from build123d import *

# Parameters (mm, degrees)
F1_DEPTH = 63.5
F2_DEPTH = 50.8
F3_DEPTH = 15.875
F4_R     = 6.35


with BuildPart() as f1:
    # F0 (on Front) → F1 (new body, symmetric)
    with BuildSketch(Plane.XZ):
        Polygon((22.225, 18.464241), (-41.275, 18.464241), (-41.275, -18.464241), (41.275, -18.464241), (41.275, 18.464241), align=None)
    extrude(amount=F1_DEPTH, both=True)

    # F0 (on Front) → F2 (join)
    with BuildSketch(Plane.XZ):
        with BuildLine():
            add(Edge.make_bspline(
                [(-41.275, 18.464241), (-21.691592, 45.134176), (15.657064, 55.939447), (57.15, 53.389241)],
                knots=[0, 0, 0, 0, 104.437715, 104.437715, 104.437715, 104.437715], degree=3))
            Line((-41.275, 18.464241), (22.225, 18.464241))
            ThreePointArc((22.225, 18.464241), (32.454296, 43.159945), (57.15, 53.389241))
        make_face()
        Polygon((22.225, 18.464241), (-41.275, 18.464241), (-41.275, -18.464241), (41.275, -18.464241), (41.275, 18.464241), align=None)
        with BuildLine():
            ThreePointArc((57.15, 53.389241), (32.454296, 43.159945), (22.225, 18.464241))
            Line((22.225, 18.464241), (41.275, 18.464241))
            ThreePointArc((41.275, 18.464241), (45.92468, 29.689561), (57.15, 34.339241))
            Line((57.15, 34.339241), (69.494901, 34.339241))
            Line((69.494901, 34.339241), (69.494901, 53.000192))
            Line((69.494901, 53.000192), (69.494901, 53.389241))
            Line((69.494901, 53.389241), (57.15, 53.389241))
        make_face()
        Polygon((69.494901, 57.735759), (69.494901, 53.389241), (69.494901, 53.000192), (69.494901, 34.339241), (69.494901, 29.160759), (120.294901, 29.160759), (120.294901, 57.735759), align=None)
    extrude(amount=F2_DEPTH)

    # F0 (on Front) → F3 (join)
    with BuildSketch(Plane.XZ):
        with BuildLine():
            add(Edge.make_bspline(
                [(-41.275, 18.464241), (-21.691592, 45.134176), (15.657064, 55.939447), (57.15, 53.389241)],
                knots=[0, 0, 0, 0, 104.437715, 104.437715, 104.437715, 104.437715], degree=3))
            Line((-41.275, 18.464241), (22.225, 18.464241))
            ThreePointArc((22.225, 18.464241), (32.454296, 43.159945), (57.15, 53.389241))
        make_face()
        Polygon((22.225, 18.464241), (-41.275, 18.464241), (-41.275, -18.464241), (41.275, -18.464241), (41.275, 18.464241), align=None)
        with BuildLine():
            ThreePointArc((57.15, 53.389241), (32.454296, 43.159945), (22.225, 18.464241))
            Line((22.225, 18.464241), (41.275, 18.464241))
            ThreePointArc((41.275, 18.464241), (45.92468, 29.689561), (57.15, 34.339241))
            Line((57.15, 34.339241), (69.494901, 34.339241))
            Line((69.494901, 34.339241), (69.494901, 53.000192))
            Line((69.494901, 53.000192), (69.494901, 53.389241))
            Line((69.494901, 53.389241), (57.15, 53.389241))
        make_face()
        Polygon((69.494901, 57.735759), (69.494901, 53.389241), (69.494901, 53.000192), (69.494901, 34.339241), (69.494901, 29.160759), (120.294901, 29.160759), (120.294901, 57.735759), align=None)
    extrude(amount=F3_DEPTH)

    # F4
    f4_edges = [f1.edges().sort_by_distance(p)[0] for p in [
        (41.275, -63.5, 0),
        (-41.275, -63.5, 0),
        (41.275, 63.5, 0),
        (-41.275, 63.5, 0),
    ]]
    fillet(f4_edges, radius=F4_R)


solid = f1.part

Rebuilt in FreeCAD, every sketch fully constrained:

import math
import FreeCAD as App
import Part
import Sketcher
Q = App.Units.Quantity


def edges_at(feature, points):
    """Names of the edges that pass closest to the given points."""
    edges = feature.Shape.Edges
    near = lambda p: min(range(len(edges)), key=lambda i: edges[i].distToShape(Part.Vertex(*p))[0])
    return sorted({f"Edge{near(p) + 1}" for p in points})


def add_polygon(sketch, points):
    """Adds a closed chain of lines whose ends are joined by coincident constraints."""
    first, n = sketch.GeometryCount, len(points)
    for a, b in zip(points, points[1:] + points[:1]):
        sketch.addGeometry(Part.LineSegment(App.Vector(*a, 0), App.Vector(*b, 0)), False)
    for i in range(n):
        sketch.addConstraint(Sketcher.Constraint("Coincident", first + i, 2, first + (i + 1) % n, 1))

doc = App.newDocument("Part")
body = doc.addObject("PartDesign::Body", "Body")

# Sketch on XZ plane
sketch1 = body.newObject("Sketcher::SketchObject", "Sketch")
sketch1.AttachmentSupport = (doc.getObject("XZ_Plane"), [""])
sketch1.MapMode = "FlatFace"
add_polygon(sketch1, [(-41.275, 18.464241), (-41.275, -18.464241), (41.275, -18.464241), (41.275, 18.464241)])  # lines 0-3
sketch1.addConstraint(Sketcher.Constraint("Vertical", 0))
sketch1.addConstraint(Sketcher.Constraint("Horizontal", 1))
sketch1.addConstraint(Sketcher.Constraint("Vertical", 2))
sketch1.addConstraint(Sketcher.Constraint("Horizontal", 3))
sketch1.addConstraint(Sketcher.Constraint("Symmetric", 0, 2, 2, 2, -1, 1))
sketch1.addConstraint(Sketcher.Constraint("DistanceX", 1, 1, 1, 2, Q("3.25 in")))
sketch1.addConstraint(Sketcher.Constraint("DistanceY", 0, 2, 0, 1, Q("36.928482 mm")))
pad1 = body.newObject("PartDesign::Pad", "Pad")
pad1.Profile = sketch1
pad1.Length = Q("5 in")
pad1.Midplane = True

# Sketch on XZ plane
sketch2 = body.newObject("Sketcher::SketchObject", "Sketch001")
sketch2.AttachmentSupport = (doc.getObject("XZ_Plane"), [""])
sketch2.MapMode = "FlatFace"
sketch2.addGeometry(Part.BSplineCurve([App.Vector(-41.275, 18.464241, 0), App.Vector(-21.691592, 45.134176, 0), App.Vector(15.657064, 55.939447, 0), App.Vector(57.15, 53.389241, 0)], [4, 4], [0, 104.437715], False, 3, [1, 1, 1, 1], False), False)
sketch2.addGeometry(Part.LineSegment(App.Vector(-41.275, 18.464241, 0), App.Vector(-41.275, -18.464241, 0)), False)
sketch2.addGeometry(Part.LineSegment(App.Vector(-41.275, -18.464241, 0), App.Vector(41.275, -18.464241, 0)), False)
sketch2.addGeometry(Part.LineSegment(App.Vector(41.275, -18.464241, 0), App.Vector(41.275, 18.464241, 0)), False)
sketch2.addGeometry(Part.ArcOfCircle(Part.Circle(App.Vector(57.150001, 18.46424, 0), App.Vector(0, 0, 1), 15.875001), math.radians(90.000002), math.radians(179.999998)), False)
sketch2.addGeometry(Part.LineSegment(App.Vector(57.15, 34.339241, 0), App.Vector(69.494901, 34.339241, 0)), False)
sketch2.addGeometry(Part.LineSegment(App.Vector(69.494901, 34.339241, 0), App.Vector(69.494901, 29.160759, 0)), False)
sketch2.addGeometry(Part.LineSegment(App.Vector(69.494901, 29.160759, 0), App.Vector(120.294901, 29.160759, 0)), False)
sketch2.addGeometry(Part.LineSegment(App.Vector(120.294901, 29.160759, 0), App.Vector(120.294901, 57.735759, 0)), False)
sketch2.addGeometry(Part.LineSegment(App.Vector(120.294901, 57.735759, 0), App.Vector(69.494901, 57.735759, 0)), False)
sketch2.addGeometry(Part.LineSegment(App.Vector(69.494901, 57.735759, 0), App.Vector(69.494901, 53.389241, 0)), False)
sketch2.addGeometry(Part.LineSegment(App.Vector(69.494901, 53.389241, 0), App.Vector(57.15, 53.389241, 0)), False)
sketch2.addConstraint(Sketcher.Constraint("Block", 0))
sketch2.addConstraint(Sketcher.Constraint("Coincident", 0, 1, 1, 1))
sketch2.addConstraint(Sketcher.Constraint("Coincident", 1, 2, 2, 1))
sketch2.addConstraint(Sketcher.Constraint("Coincident", 2, 2, 3, 1))
sketch2.addConstraint(Sketcher.Constraint("Coincident", 3, 2, 4, 2))
sketch2.addConstraint(Sketcher.Constraint("Coincident", 4, 1, 5, 1))
sketch2.addConstraint(Sketcher.Constraint("Coincident", 5, 2, 6, 1))
sketch2.addConstraint(Sketcher.Constraint("Coincident", 6, 2, 7, 1))
sketch2.addConstraint(Sketcher.Constraint("Coincident", 7, 2, 8, 1))
sketch2.addConstraint(Sketcher.Constraint("Coincident", 8, 2, 9, 1))
sketch2.addConstraint(Sketcher.Constraint("Coincident", 9, 2, 10, 1))
sketch2.addConstraint(Sketcher.Constraint("Coincident", 10, 2, 11, 1))
sketch2.addConstraint(Sketcher.Constraint("Coincident", 11, 2, 0, 2))
sketch2.addConstraint(Sketcher.Constraint("Vertical", 1))
sketch2.addConstraint(Sketcher.Constraint("Horizontal", 2))
sketch2.addConstraint(Sketcher.Constraint("Vertical", 3))
sketch2.addConstraint(Sketcher.Constraint("Horizontal", 5))
sketch2.addConstraint(Sketcher.Constraint("Vertical", 6))
sketch2.addConstraint(Sketcher.Constraint("Horizontal", 7))
sketch2.addConstraint(Sketcher.Constraint("Vertical", 8))
sketch2.addConstraint(Sketcher.Constraint("Horizontal", 9))
sketch2.addConstraint(Sketcher.Constraint("Vertical", 10))
sketch2.addConstraint(Sketcher.Constraint("Horizontal", 11))
sketch2.addConstraint(Sketcher.Constraint("DistanceX", 7, 1, 7, 2, Q("2 in")))
sketch2.addConstraint(Sketcher.Constraint("DistanceX", 9, 2, 9, 1, Q("2 in")))
sketch2.addConstraint(Sketcher.Constraint("Radius", 4, Q("0.625 in")))
sketch2.addConstraint(Sketcher.Constraint("DistanceX", 2, 1, 2, 2, Q("3.25 in")))
sketch2.addConstraint(Sketcher.Constraint("DistanceY", 8, 1, 8, 2, Q("1.125 in")))
sketch2.addConstraint(Sketcher.Constraint("DistanceX", -1, 1, 4, 1, Q("2.25 in")))
sketch2.addConstraint(Sketcher.Constraint("DistanceY", 5, 2, 10, 2, Q("0.75 in")))
sketch2.addConstraint(Sketcher.Constraint("DistanceY", 3, 2, 4, 1, Q("0.625 in")))
sketch2.addConstraint(Sketcher.Constraint("DistanceY", 2, 2, 6, 2, Q("1.875 in")))
sketch2.addConstraint(Sketcher.Constraint("DistanceX", 5, 1, 5, 2, Q("12.344901 mm")))
sketch2.addConstraint(Sketcher.Constraint("DistanceY", 10, 2, 10, 1, Q("4.346518 mm")))
pad2 = body.newObject("PartDesign::Pad", "Pad001")
pad2.Profile = sketch2
pad2.Length = Q("2 in")

# Sketch on XZ plane
sketch3 = body.newObject("Sketcher::SketchObject", "Sketch002")
sketch3.AttachmentSupport = (doc.getObject("XZ_Plane"), [""])
sketch3.MapMode = "FlatFace"
sketch3.addGeometry(Part.BSplineCurve([App.Vector(-41.275, 18.464241, 0), App.Vector(-21.691592, 45.134176, 0), App.Vector(15.657064, 55.939447, 0), App.Vector(57.15, 53.389241, 0)], [4, 4], [0, 104.437715], False, 3, [1, 1, 1, 1], False), False)
sketch3.addGeometry(Part.LineSegment(App.Vector(-41.275, 18.464241, 0), App.Vector(-41.275, -18.464241, 0)), False)
sketch3.addGeometry(Part.LineSegment(App.Vector(-41.275, -18.464241, 0), App.Vector(41.275, -18.464241, 0)), False)
sketch3.addGeometry(Part.LineSegment(App.Vector(41.275, -18.464241, 0), App.Vector(41.275, 18.464241, 0)), False)
sketch3.addGeometry(Part.ArcOfCircle(Part.Circle(App.Vector(57.150001, 18.46424, 0), App.Vector(0, 0, 1), 15.875001), math.radians(90.000002), math.radians(179.999998)), False)
sketch3.addGeometry(Part.LineSegment(App.Vector(57.15, 34.339241, 0), App.Vector(69.494901, 34.339241, 0)), False)
sketch3.addGeometry(Part.LineSegment(App.Vector(69.494901, 34.339241, 0), App.Vector(69.494901, 29.160759, 0)), False)
sketch3.addGeometry(Part.LineSegment(App.Vector(69.494901, 29.160759, 0), App.Vector(120.294901, 29.160759, 0)), False)
sketch3.addGeometry(Part.LineSegment(App.Vector(120.294901, 29.160759, 0), App.Vector(120.294901, 57.735759, 0)), False)
sketch3.addGeometry(Part.LineSegment(App.Vector(120.294901, 57.735759, 0), App.Vector(69.494901, 57.735759, 0)), False)
sketch3.addGeometry(Part.LineSegment(App.Vector(69.494901, 57.735759, 0), App.Vector(69.494901, 53.389241, 0)), False)
sketch3.addGeometry(Part.LineSegment(App.Vector(69.494901, 53.389241, 0), App.Vector(57.15, 53.389241, 0)), False)
sketch3.addConstraint(Sketcher.Constraint("Block", 0))
sketch3.addConstraint(Sketcher.Constraint("Coincident", 0, 1, 1, 1))
sketch3.addConstraint(Sketcher.Constraint("Coincident", 1, 2, 2, 1))
sketch3.addConstraint(Sketcher.Constraint("Coincident", 2, 2, 3, 1))
sketch3.addConstraint(Sketcher.Constraint("Coincident", 3, 2, 4, 2))
sketch3.addConstraint(Sketcher.Constraint("Coincident", 4, 1, 5, 1))
sketch3.addConstraint(Sketcher.Constraint("Coincident", 5, 2, 6, 1))
sketch3.addConstraint(Sketcher.Constraint("Coincident", 6, 2, 7, 1))
sketch3.addConstraint(Sketcher.Constraint("Coincident", 7, 2, 8, 1))
sketch3.addConstraint(Sketcher.Constraint("Coincident", 8, 2, 9, 1))
sketch3.addConstraint(Sketcher.Constraint("Coincident", 9, 2, 10, 1))
sketch3.addConstraint(Sketcher.Constraint("Coincident", 10, 2, 11, 1))
sketch3.addConstraint(Sketcher.Constraint("Coincident", 11, 2, 0, 2))
sketch3.addConstraint(Sketcher.Constraint("Vertical", 1))
sketch3.addConstraint(Sketcher.Constraint("Horizontal", 2))
sketch3.addConstraint(Sketcher.Constraint("Vertical", 3))
sketch3.addConstraint(Sketcher.Constraint("Horizontal", 5))
sketch3.addConstraint(Sketcher.Constraint("Vertical", 6))
sketch3.addConstraint(Sketcher.Constraint("Horizontal", 7))
sketch3.addConstraint(Sketcher.Constraint("Vertical", 8))
sketch3.addConstraint(Sketcher.Constraint("Horizontal", 9))
sketch3.addConstraint(Sketcher.Constraint("Vertical", 10))
sketch3.addConstraint(Sketcher.Constraint("Horizontal", 11))
sketch3.addConstraint(Sketcher.Constraint("DistanceX", 7, 1, 7, 2, Q("2 in")))
sketch3.addConstraint(Sketcher.Constraint("DistanceX", 9, 2, 9, 1, Q("2 in")))
sketch3.addConstraint(Sketcher.Constraint("Radius", 4, Q("0.625 in")))
sketch3.addConstraint(Sketcher.Constraint("DistanceX", 2, 1, 2, 2, Q("3.25 in")))
sketch3.addConstraint(Sketcher.Constraint("DistanceY", 8, 1, 8, 2, Q("1.125 in")))
sketch3.addConstraint(Sketcher.Constraint("DistanceX", -1, 1, 4, 1, Q("2.25 in")))
sketch3.addConstraint(Sketcher.Constraint("DistanceY", 5, 2, 10, 2, Q("0.75 in")))
sketch3.addConstraint(Sketcher.Constraint("DistanceY", 3, 2, 4, 1, Q("0.625 in")))
sketch3.addConstraint(Sketcher.Constraint("DistanceY", 2, 2, 6, 2, Q("1.875 in")))
sketch3.addConstraint(Sketcher.Constraint("DistanceX", 5, 1, 5, 2, Q("12.344901 mm")))
sketch3.addConstraint(Sketcher.Constraint("DistanceY", 10, 2, 10, 1, Q("4.346518 mm")))
pad3 = body.newObject("PartDesign::Pad", "Pad002")
pad3.Profile = sketch3
pad3.Length = Q("0.625 in")
doc.recompute()

fillet = body.newObject("PartDesign::Fillet", "Fillet")
fillet.Base = (pad3, edges_at(pad3, [
    (41.275, -63.5, 0),
    (-41.275, -63.5, 0),
    (41.275, 63.5, 0),
    (-41.275, 63.5, 0),
]))
fillet.Radius = Q("0.25 in")

doc.recompute()
